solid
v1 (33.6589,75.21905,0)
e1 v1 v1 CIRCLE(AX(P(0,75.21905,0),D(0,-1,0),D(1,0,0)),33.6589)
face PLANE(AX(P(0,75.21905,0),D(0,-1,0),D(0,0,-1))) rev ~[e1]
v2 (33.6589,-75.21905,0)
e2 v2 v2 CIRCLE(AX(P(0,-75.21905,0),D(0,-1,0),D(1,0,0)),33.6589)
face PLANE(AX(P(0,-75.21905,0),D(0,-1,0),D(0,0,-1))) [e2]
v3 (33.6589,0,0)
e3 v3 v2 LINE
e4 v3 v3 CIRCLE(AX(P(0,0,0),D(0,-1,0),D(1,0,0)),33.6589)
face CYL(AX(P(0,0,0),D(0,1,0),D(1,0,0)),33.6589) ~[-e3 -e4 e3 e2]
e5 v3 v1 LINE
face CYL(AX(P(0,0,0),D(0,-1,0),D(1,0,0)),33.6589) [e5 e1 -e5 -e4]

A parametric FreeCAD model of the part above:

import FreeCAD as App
import Part
import Sketcher
Q = App.Units.Quantity

doc = App.newDocument("Part")
params = doc.addObject("Spreadsheet::Sheet", "Params")
for row, (alias, value) in enumerate([
    ("pad1_length", "150.4381 mm"),
], start=1):
    params.set(f"A{row}", alias)
    params.set(f"B{row}", "=" + value)
    params.setAlias(f"B{row}", alias)

body = doc.addObject("PartDesign::Body", "Body")

sketch1 = body.newObject("Sketcher::SketchObject", "Sketch")
sketch1.AttachmentSupport = (doc.getObject("XZ_Plane"), [""])
sketch1.MapMode = "FlatFace"
sketch1.addGeometry(Part.Circle(App.Vector(0, 0, 0), App.Vector(0, 0, 1), 34), False)
sketch1.addConstraint([
    Sketcher.Constraint("Coincident", 0, 3, -1, 1),
    Sketcher.Constraint("Diameter", 0, Q("67.3178 mm")),
])
pad1 = body.newObject("PartDesign::Pad", "Pad")
pad1.Profile = sketch1
pad1.setExpression("Length", "Params.pad1_length")
pad1.Midplane = True

doc.recompute()
